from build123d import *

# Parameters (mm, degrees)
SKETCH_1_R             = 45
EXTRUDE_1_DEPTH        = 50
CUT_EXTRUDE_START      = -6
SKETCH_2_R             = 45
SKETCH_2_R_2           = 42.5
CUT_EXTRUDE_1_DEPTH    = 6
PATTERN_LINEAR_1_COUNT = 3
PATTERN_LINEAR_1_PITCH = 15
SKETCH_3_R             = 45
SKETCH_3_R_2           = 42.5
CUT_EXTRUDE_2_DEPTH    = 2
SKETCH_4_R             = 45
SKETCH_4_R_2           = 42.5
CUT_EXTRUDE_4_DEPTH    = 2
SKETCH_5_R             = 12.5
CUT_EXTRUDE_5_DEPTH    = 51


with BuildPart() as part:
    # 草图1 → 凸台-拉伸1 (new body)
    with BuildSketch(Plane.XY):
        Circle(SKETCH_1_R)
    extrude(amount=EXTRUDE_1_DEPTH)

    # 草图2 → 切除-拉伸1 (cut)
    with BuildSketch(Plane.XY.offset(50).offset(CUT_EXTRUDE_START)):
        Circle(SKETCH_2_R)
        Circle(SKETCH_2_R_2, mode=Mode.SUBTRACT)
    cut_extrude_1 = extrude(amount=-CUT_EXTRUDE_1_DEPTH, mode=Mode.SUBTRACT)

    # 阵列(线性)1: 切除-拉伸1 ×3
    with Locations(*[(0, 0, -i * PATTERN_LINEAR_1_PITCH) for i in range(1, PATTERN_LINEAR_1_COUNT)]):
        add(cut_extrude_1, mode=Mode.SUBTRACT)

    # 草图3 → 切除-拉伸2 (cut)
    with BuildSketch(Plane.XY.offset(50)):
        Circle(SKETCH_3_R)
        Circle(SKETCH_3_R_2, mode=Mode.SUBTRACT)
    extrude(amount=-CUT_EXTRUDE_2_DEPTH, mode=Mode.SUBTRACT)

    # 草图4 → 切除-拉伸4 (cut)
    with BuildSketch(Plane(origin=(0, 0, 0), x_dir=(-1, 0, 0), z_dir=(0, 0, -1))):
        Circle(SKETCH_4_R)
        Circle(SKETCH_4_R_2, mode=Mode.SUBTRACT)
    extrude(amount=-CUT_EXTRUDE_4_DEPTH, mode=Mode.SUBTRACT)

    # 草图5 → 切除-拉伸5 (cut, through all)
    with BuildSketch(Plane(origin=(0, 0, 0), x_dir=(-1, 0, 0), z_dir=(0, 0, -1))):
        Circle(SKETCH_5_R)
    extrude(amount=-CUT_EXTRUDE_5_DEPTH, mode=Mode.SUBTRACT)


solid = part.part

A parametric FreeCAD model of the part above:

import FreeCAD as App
import Part
import Sketcher

V = App.Vector
Q = App.Units.Quantity

doc = App.newDocument("Part")
body = doc.addObject("PartDesign::Body", "Body")

sketch1 = body.newObject("Sketcher::SketchObject", "Sketch")
sketch1.AttachmentSupport = (doc.getObject("XY_Plane"), [""])
sketch1.MapMode = "FlatFace"
sketch1.addGeometry(Part.Circle(V(0, 0, 0), V(0, 0, 1), 45), False)
sketch1.addConstraint([
    Sketcher.Constraint("Coincident", 0, 3, -1, 1),
    Sketcher.Constraint("Diameter", 0, Q("90 mm")),
])
pad1 = body.newObject("PartDesign::Pad", "Pad")
pad1.Profile = sketch1
pad1.Length = 50

sketch2 = body.newObject("Sketcher::SketchObject", "Sketch001")
sketch2.AttachmentSupport = (doc.getObject("XY_Plane"), [""])
sketch2.MapMode = "FlatFace"
sketch2.AttachmentOffset = App.Placement(V(0, 0, 44), App.Rotation())
sketch2.addGeometry([
    Part.Circle(V(0, 0, 0), V(0, 0, 1), 45),
    Part.Circle(V(0, 0, 0), V(0, 0, 1), 42),
], False)
sketch2.addConstraint([
    Sketcher.Constraint("Coincident", 0, 3, -1, 1),
    Sketcher.Constraint("Coincident", 1, 3, -1, 1),
    Sketcher.Constraint("Diameter", 0, Q("90 mm")),
    Sketcher.Constraint("Diameter", 1, Q("85 mm")),
])
pocket1 = body.newObject("PartDesign::Pocket", "Pocket")
pocket1.Profile = sketch2
pocket1.Length = 6
doc.recompute()

linearpattern = body.newObject("PartDesign::LinearPattern", "LinearPattern")
linearpattern.Originals = [pocket1]
linearpattern.Direction = (doc.getObject("Z_Axis"), [""])
linearpattern.Mode = "offset"
linearpattern.Offset = 15
linearpattern.Occurrences = 3
linearpattern.Reversed = True
body.Tip = linearpattern

sketch3 = body.newObject("Sketcher::SketchObject", "Sketch002")
sketch3.AttachmentSupport = (doc.getObject("XY_Plane"), [""])
sketch3.MapMode = "FlatFace"
sketch3.AttachmentOffset = App.Placement(V(0, 0, 50), App.Rotation())
sketch3.addGeometry([
    Part.Circle(V(0, 0, 0), V(0, 0, 1), 45),
    Part.Circle(V(0, 0, 0), V(0, 0, 1), 42),
], False)
sketch3.addConstraint([
    Sketcher.Constraint("Coincident", 0, 3, -1, 1),
    Sketcher.Constraint("Coincident", 1, 3, -1, 1),
    Sketcher.Constraint("Diameter", 0, Q("90 mm")),
    Sketcher.Constraint("Diameter", 1, Q("85 mm")),
])
pocket2 = body.newObject("PartDesign::Pocket", "Pocket001")
pocket2.Profile = sketch3
pocket2.Length = 2

sketch4 = body.newObject("Sketcher::SketchObject", "Sketch003")
sketch4.AttachmentSupport = (doc.getObject("XY_Plane"), [""])
sketch4.MapMode = "FlatFace"
sketch4.addGeometry([
    Part.Circle(V(0, 0, 0), V(0, 0, 1), 45),
    Part.Circle(V(0, 0, 0), V(0, 0, 1), 42),
], False)
sketch4.addConstraint([
    Sketcher.Constraint("Coincident", 0, 3, -1, 1),
    Sketcher.Constraint("Coincident", 1, 3, -1, 1),
    Sketcher.Constraint("Diameter", 0, Q("90 mm")),
    Sketcher.Constraint("Diameter", 1, Q("85 mm")),
])
pocket3 = body.newObject("PartDesign::Pocket", "Pocket002")
pocket3.Profile = sketch4
pocket3.Length = 2
pocket3.Reversed = True

sketch5 = body.newObject("Sketcher::SketchObject", "Sketch004")
sketch5.AttachmentSupport = (doc.getObject("XY_Plane"), [""])
sketch5.MapMode = "FlatFace"
sketch5.addGeometry(Part.Circle(V(0, 0, 0), V(0, 0, 1), 12), False)
sketch5.addConstraint([
    Sketcher.Constraint("Coincident", 0, 3, -1, 1),
    Sketcher.Constraint("Diameter", 0, Q("25 mm")),
])
pocket4 = body.newObject("PartDesign::Pocket", "Pocket003")
pocket4.Profile = sketch5
pocket4.Type = "ThroughAll"
pocket4.Reversed = True

doc.recompute()
